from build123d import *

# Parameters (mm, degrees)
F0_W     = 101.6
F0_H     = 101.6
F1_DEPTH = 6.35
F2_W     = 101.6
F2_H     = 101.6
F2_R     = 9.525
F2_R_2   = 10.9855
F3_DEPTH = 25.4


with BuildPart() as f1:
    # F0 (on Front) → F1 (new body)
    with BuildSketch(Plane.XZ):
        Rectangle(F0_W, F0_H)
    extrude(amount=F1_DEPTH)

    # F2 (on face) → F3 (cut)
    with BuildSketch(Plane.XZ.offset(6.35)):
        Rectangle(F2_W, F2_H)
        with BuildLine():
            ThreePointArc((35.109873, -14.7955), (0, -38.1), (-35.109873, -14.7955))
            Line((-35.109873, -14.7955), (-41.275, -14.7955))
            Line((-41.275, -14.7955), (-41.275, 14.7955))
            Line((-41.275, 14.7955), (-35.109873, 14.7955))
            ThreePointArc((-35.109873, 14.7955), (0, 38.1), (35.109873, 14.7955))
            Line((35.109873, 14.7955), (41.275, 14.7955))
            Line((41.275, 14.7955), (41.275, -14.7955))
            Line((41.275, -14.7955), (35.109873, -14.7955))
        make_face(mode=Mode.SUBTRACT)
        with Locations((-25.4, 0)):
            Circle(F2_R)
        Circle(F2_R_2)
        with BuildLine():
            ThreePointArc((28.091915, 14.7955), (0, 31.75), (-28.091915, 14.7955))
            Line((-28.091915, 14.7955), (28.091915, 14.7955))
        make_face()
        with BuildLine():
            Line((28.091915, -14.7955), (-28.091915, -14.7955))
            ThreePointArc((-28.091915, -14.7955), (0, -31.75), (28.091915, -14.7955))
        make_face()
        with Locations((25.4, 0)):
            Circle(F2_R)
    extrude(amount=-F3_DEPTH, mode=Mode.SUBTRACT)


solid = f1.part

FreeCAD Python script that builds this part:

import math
import FreeCAD as App
import Part
import Sketcher

V = App.Vector
Q = App.Units.Quantity

doc = App.newDocument("Part")
params = doc.addObject("Spreadsheet::Sheet", "Params")
for row, (alias, value) in enumerate([
    ("sketch1_width", "4 in"),
    ("pad1_length", "0.25 in"),
    ("sketch2_radius", "1.5 in"),
    ("sketch2_diameter", "0.75 in"),
    ("sketch2_width", "4 in"),
    ("sketch2_radius2", "1.25 in"),
    ("sketch2_diameter2", "0.865 in"),
    ("pocket1_length", "1 in"),
], start=1):
    params.set(f"A{row}", alias)
    params.set(f"B{row}", "=" + value)
    params.setAlias(f"B{row}", alias)

body = doc.addObject("PartDesign::Body", "Body")

sketch1 = body.newObject("Sketcher::SketchObject", "Sketch")
sketch1.AttachmentSupport = (doc.getObject("XZ_Plane"), [""])
sketch1.MapMode = "FlatFace"
sketch1.addGeometry(Part.LineSegment(V(-51, 51, 0), V(-51, -51, 0)), False)
sketch1.addGeometry(Part.LineSegment(V(-51, -51, 0), V(51, -51, 0)), False)
sketch1.addGeometry(Part.LineSegment(V(51, -51, 0), V(51, 51, 0)), False)
sketch1.addGeometry(Part.LineSegment(V(51, 51, 0), V(-51, 51, 0)), False)
sketch1.addConstraint(Sketcher.Constraint("Coincident", 0, 2, 1, 1))
sketch1.addConstraint(Sketcher.Constraint("Coincident", 1, 2, 2, 1))
sketch1.addConstraint(Sketcher.Constraint("Coincident", 2, 2, 3, 1))
sketch1.addConstraint(Sketcher.Constraint("Coincident", 3, 2, 0, 1))
sketch1.addConstraint(Sketcher.Constraint("Vertical", 0))
sketch1.addConstraint(Sketcher.Constraint("Horizontal", 1))
sketch1.addConstraint(Sketcher.Constraint("Vertical", 2))
sketch1.addConstraint(Sketcher.Constraint("Horizontal", 3))
sketch1.addConstraint(Sketcher.Constraint("Symmetric", 0, 2, 2, 2, -1, 1))
sketch1.addConstraint(Sketcher.Constraint("Equal", 3, 0))
sketch1.addConstraint(Sketcher.Constraint("DistanceX", 1, 1, 1, 2, Q("4 in")))
sketch1.setExpression("Constraints[10]", "Params.sketch1_width")
pad1 = body.newObject("PartDesign::Pad", "Pad")
pad1.Profile = sketch1
pad1.setExpression("Length", "Params.pad1_length")

sketch2 = body.newObject("Sketcher::SketchObject", "Sketch001")
sketch2.AttachmentSupport = (doc.getObject("XZ_Plane"), [""])
sketch2.MapMode = "FlatFace"
sketch2.AttachmentOffset = App.Placement(V(0, 0, 0.25 * 25.4), App.Rotation())
sketch2.addGeometry(Part.LineSegment(V(-51, 51, 0), V(-51, -51, 0)), False)
sketch2.addGeometry(Part.LineSegment(V(-51, -51, 0), V(51, -51, 0)), False)
sketch2.addGeometry(Part.LineSegment(V(51, -51, 0), V(51, 51, 0)), False)
sketch2.addGeometry(Part.LineSegment(V(51, 51, 0), V(-51, 51, 0)), False)
sketch2.addGeometry(Part.LineSegment(V(41, -15, 0), V(35, -15, 0)), False)
sketch2.addGeometry(Part.ArcOfCircle(Part.Circle(V(0, 0, 0), V(0, 0, 1), 38), math.radians(-157), math.radians(-23)), False)
sketch2.addGeometry(Part.LineSegment(V(-35, -15, 0), V(-41, -15, 0)), False)
sketch2.addGeometry(Part.LineSegment(V(-41, -15, 0), V(-41, 15, 0)), False)
sketch2.addGeometry(Part.LineSegment(V(-41, 15, 0), V(-35, 15, 0)), False)
sketch2.addGeometry(Part.ArcOfCircle(Part.Circle(V(0, 0, 0), V(0, 0, 1), 38), math.radians(23), math.radians(157)), False)
sketch2.addGeometry(Part.LineSegment(V(35, 15, 0), V(41, 15, 0)), False)
sketch2.addGeometry(Part.LineSegment(V(41, 15, 0), V(41, -15, 0)), False)
sketch2.addGeometry(Part.Circle(V(-25, 0, 0), V(0, 0, 1), 10), False)
sketch2.addGeometry(Part.Circle(V(0, 0, 0), V(0, 0, 1), 11), False)
sketch2.addGeometry(Part.ArcOfCircle(Part.Circle(V(0, 0, 0), V(0, 0, 1), 32), math.radians(28), math.radians(152)), False)
sketch2.addGeometry(Part.LineSegment(V(-28, 15, 0), V(28, 15, 0)), False)
sketch2.addGeometry(Part.LineSegment(V(28, -15, 0), V(-28, -15, 0)), False)
sketch2.addGeometry(Part.ArcOfCircle(Part.Circle(V(0, 0, 0), V(0, 0, 1), 32), math.radians(-152), math.radians(-28)), False)
sketch2.addGeometry(Part.Circle(V(25, 0, 0), V(0, 0, 1), 10), False)
sketch2.addConstraint(Sketcher.Constraint("Coincident", 0, 2, 1, 1))
sketch2.addConstraint(Sketcher.Constraint("Coincident", 1, 2, 2, 1))
sketch2.addConstraint(Sketcher.Constraint("Coincident", 2, 2, 3, 1))
sketch2.addConstraint(Sketcher.Constraint("Coincident", 3, 2, 0, 1))
sketch2.addConstraint(Sketcher.Constraint("Coincident", 4, 2, 5, 2))
sketch2.addConstraint(Sketcher.Constraint("Coincident", 5, 1, 6, 1))
sketch2.addConstraint(Sketcher.Constraint("Coincident", 6, 2, 7, 1))
sketch2.addConstraint(Sketcher.Constraint("Coincident", 7, 2, 8, 1))
sketch2.addConstraint(Sketcher.Constraint("Coincident", 8, 2, 9, 2))
sketch2.addConstraint(Sketcher.Constraint("Coincident", 9, 1, 10, 1))
sketch2.addConstraint(Sketcher.Constraint("Coincident", 10, 2, 11, 1))
sketch2.addConstraint(Sketcher.Constraint("Coincident", 11, 2, 4, 1))
sketch2.addConstraint(Sketcher.Constraint("Coincident", 14, 1, 15, 2))
sketch2.addConstraint(Sketcher.Constraint("Coincident", 15, 1, 14, 2))
sketch2.addConstraint(Sketcher.Constraint("Coincident", 16, 1, 17, 2))
sketch2.addConstraint(Sketcher.Constraint("Coincident", 17, 1, 16, 2))
sketch2.addConstraint(Sketcher.Constraint("Vertical", 0))
sketch2.addConstraint(Sketcher.Constraint("Horizontal", 1))
sketch2.addConstraint(Sketcher.Constraint("Vertical", 2))
sketch2.addConstraint(Sketcher.Constraint("Horizontal", 3))
sketch2.addConstraint(Sketcher.Constraint("Horizontal", 4))
sketch2.addConstraint(Sketcher.Constraint("Horizontal", 6))
sketch2.addConstraint(Sketcher.Constraint("Vertical", 7))
sketch2.addConstraint(Sketcher.Constraint("Horizontal", 8))
sketch2.addConstraint(Sketcher.Constraint("Horizontal", 10))
sketch2.addConstraint(Sketcher.Constraint("Vertical", 11))
sketch2.addConstraint(Sketcher.Constraint("Horizontal", 15))
sketch2.addConstraint(Sketcher.Constraint("Horizontal", 16))
sketch2.addConstraint(Sketcher.Constraint("Coincident", 5, 3, -1, 1))
sketch2.addConstraint(Sketcher.Constraint("Coincident", 9, 3, -1, 1))
sketch2.addConstraint(Sketcher.Constraint("Coincident", 13, 3, -1, 1))
sketch2.addConstraint(Sketcher.Constraint("Coincident", 14, 3, -1, 1))
sketch2.addConstraint(Sketcher.Constraint("Coincident", 17, 3, -1, 1))
sketch2.addConstraint(Sketcher.Constraint("Equal", 5, 9))
sketch2.addConstraint(Sketcher.Constraint("Equal", 14, 17))
sketch2.addConstraint(Sketcher.Constraint("Equal", 12, 18))
sketch2.addConstraint(Sketcher.Constraint("Symmetric", 12, 3, 18, 3, -1, 1))
sketch2.addConstraint(Sketcher.Constraint("Symmetric", 0, 2, 2, 2, -1, 1))
sketch2.addConstraint(Sketcher.Constraint("Symmetric", 6, 2, 10, 2, -1, 1))
sketch2.addConstraint(Sketcher.Constraint("PointOnObject", 12, 3, -1))
sketch2.addConstraint(Sketcher.Constraint("Horizontal", 4, 2, 5, 1))
sketch2.addConstraint(Sketcher.Constraint("Horizontal", 8, 2, 9, 1))
sketch2.addConstraint(Sketcher.Constraint("Horizontal", 10, 2, 14, 1))
sketch2.addConstraint(Sketcher.Constraint("Horizontal", 11, 2, 16, 1))
sketch2.addConstraint(Sketcher.Constraint("Equal", 3, 0))
sketch2.addConstraint(Sketcher.Constraint("Radius", 5, Q("1.5 in")))
sketch2.addConstraint(Sketcher.Constraint("Diameter", 12, Q("0.75 in")))
sketch2.addConstraint(Sketcher.Constraint("DistanceX", 1, 1, 1, 2, Q("4 in")))
sketch2.addConstraint(Sketcher.Constraint("Radius", 14, Q("1.25 in")))
sketch2.addConstraint(Sketcher.Constraint("Diameter", 13, Q("0.865 in")))
sketch2.addConstraint(Sketcher.Constraint("DistanceX", 12, 3, -1, 1, Q("1 in")))
sketch2.addConstraint(Sketcher.Constraint("DistanceY", 7, 1, 7, 2, Q("1.165 in")))
sketch2.addConstraint(Sketcher.Constraint("DistanceX", 6, 2, -1, 1, Q("1.625 in")))
sketch2.setExpression("Constraints[45]", "Params.sketch2_radius")
sketch2.setExpression("Constraints[46]", "Params.sketch2_diameter")
sketch2.setExpression("Constraints[47]", "Params.sketch2_width")
sketch2.setExpression("Constraints[48]", "Params.sketch2_radius2")
sketch2.setExpression("Constraints[49]", "Params.sketch2_diameter2")
pocket1 = body.newObject("PartDesign::Pocket", "Pocket")
pocket1.Profile = sketch2
pocket1.setExpression("Length", "Params.pocket1_length")

doc.recompute()
